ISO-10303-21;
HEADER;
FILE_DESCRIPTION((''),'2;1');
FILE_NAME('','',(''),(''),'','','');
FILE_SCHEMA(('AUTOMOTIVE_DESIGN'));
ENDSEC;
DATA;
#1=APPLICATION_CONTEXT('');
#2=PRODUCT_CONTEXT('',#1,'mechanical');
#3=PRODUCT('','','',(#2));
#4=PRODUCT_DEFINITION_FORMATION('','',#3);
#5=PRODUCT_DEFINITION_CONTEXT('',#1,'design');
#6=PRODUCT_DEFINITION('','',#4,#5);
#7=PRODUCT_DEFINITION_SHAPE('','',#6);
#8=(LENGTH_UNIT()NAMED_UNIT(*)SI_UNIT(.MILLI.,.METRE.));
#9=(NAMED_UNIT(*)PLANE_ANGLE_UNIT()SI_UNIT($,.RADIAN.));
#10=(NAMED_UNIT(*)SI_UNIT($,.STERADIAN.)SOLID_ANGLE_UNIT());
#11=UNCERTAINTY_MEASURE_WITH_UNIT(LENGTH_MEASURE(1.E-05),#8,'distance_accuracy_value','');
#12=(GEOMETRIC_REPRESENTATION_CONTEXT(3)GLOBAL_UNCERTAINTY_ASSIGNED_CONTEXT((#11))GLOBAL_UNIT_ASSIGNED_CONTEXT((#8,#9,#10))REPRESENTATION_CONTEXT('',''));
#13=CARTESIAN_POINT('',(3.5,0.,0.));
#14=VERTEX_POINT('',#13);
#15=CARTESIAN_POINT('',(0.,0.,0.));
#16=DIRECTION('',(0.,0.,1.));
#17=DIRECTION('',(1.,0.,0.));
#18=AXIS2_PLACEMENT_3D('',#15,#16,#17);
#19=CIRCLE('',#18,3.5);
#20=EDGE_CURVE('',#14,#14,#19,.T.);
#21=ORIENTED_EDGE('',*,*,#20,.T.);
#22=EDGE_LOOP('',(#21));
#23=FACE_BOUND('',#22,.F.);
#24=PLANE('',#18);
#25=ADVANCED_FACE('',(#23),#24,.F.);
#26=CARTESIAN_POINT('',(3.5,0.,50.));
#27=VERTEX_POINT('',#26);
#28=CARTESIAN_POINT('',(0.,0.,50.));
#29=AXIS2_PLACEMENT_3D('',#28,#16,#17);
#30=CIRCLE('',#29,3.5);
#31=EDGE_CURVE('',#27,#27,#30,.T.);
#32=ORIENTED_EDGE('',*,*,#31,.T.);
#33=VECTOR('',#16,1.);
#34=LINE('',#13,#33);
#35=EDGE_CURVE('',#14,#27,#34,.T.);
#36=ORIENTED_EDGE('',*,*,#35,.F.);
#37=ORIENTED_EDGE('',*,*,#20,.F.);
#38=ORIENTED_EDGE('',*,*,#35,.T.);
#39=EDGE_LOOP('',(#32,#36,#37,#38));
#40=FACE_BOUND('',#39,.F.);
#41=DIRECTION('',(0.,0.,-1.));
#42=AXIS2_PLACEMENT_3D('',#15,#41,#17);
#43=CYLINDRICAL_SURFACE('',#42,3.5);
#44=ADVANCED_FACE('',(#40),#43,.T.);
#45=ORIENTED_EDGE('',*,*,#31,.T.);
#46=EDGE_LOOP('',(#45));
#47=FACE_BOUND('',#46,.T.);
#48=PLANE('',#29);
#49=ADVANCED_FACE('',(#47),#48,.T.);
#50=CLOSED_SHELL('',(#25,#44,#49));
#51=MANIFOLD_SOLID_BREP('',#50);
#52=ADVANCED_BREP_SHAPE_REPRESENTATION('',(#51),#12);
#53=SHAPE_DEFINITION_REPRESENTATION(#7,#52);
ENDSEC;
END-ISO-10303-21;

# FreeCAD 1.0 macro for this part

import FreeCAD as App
import Part
import Sketcher

doc = App.newDocument("Part")
body = doc.addObject("PartDesign::Body", "Body")

sketch1 = body.newObject("Sketcher::SketchObject", "Sketch")
sketch1.AttachmentSupport = (doc.getObject("XY_Plane"), [""])
sketch1.MapMode = "FlatFace"
sketch1.addGeometry(Part.Circle(App.Vector(0, 0, 0), App.Vector(0, 0, 1), 3.5), False)
sketch1.addConstraint(Sketcher.Constraint("Coincident", 0, 3, -1, 1))
sketch1.addConstraint(Sketcher.Constraint("Diameter", 0, 7.0))
pad1 = body.newObject("PartDesign::Pad", "Pad")
pad1.Profile = sketch1
pad1.Length = 50

doc.recompute()
